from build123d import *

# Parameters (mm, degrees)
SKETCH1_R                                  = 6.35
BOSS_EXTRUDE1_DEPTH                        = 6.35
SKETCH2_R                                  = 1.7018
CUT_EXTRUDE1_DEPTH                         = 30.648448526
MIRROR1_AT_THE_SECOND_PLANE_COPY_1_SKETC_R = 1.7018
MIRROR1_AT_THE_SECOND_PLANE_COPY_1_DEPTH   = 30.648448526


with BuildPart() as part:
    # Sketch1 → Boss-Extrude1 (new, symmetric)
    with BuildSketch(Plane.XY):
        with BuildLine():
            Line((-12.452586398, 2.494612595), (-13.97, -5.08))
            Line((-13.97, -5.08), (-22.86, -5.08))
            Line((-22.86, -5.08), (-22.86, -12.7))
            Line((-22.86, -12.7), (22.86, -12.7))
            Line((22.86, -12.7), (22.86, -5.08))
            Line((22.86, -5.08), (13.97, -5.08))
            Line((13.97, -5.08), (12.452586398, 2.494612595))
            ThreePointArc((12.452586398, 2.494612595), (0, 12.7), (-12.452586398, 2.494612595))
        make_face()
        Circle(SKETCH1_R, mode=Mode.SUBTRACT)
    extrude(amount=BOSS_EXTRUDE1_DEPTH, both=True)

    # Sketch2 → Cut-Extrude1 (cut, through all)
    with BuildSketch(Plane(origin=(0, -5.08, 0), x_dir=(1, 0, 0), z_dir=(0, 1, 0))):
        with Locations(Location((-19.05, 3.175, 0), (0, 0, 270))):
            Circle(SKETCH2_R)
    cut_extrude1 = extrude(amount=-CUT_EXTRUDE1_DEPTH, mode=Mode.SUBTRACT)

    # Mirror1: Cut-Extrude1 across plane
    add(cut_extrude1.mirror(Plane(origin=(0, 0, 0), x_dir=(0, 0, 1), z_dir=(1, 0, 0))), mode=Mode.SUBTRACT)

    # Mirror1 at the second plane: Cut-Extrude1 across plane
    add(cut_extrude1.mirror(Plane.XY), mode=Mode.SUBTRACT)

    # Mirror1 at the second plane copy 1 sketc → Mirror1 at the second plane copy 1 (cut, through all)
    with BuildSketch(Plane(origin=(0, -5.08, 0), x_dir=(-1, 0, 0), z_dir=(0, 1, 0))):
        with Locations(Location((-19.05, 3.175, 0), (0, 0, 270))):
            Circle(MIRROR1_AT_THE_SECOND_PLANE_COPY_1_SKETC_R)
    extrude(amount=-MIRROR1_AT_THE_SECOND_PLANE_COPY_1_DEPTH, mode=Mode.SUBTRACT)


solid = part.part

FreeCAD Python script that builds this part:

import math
import FreeCAD as App
import Part
import Sketcher
from FreeCAD import Vector
Q = App.Units.Quantity

doc = App.newDocument("Part")
body = doc.addObject("PartDesign::Body", "Body")

# Sketch on XY plane
sketch1 = doc.addObject("Sketcher::SketchObject", "Sketch")
body.addObject(sketch1)
sketch1.AttachmentSupport = (doc.XY_Plane, [""])
sketch1.MapMode = "FlatFace"
sketch1.addGeometry([
    Part.LineSegment(Vector(-12.452586, 2.494613, 0), Vector(-13.97, -5.08, 0)),  # 0
    Part.LineSegment(Vector(-13.97, -5.08, 0), Vector(-22.86, -5.08, 0)),  # 1
    Part.LineSegment(Vector(-22.86, -5.08, 0), Vector(-22.86, -12.7, 0)),  # 2
    Part.LineSegment(Vector(-22.86, -12.7, 0), Vector(22.86, -12.7, 0)),  # 3
    Part.LineSegment(Vector(22.86, -12.7, 0), Vector(22.86, -5.08, 0)),  # 4
    Part.LineSegment(Vector(22.86, -5.08, 0), Vector(13.97, -5.08, 0)),  # 5
    Part.LineSegment(Vector(13.97, -5.08, 0), Vector(12.452586, 2.494613, 0)),  # 6
    Part.ArcOfCircle(Part.Circle(Vector(0, 0, 0), Vector(0, 0, 1), 12.7), math.radians(11.32805), math.radians(168.67195)),  # 7
    Part.Circle(Vector(0, 0, 0), Vector(0, 0, 1), 6.35),  # 8
], False)
sketch1.addConstraint([
    Sketcher.Constraint("Coincident", 0, 2, 1, 1),
    Sketcher.Constraint("Coincident", 1, 2, 2, 1),
    Sketcher.Constraint("Coincident", 2, 2, 3, 1),
    Sketcher.Constraint("Coincident", 3, 2, 4, 1),
    Sketcher.Constraint("Coincident", 4, 2, 5, 1),
    Sketcher.Constraint("Coincident", 5, 2, 6, 1),
    Sketcher.Constraint("Tangent", 6, 2, 7, 1),
    Sketcher.Constraint("Tangent", 7, 2, 0, 1),
    Sketcher.Constraint("Horizontal", 1),
    Sketcher.Constraint("Vertical", 2),
    Sketcher.Constraint("Horizontal", 3),
    Sketcher.Constraint("Vertical", 4),
    Sketcher.Constraint("Horizontal", 5),
    Sketcher.Constraint("Coincident", 7, 3, -1, 1),
    Sketcher.Constraint("Coincident", 8, 3, -1, 1),
    Sketcher.Constraint("Symmetric", 1, 2, 4, 2, -2),
    Sketcher.Constraint("Horizontal", 6, 2, 7, 2),
    Sketcher.Constraint("Diameter", 8, Q("0.5 in")),
    Sketcher.Constraint("Radius", 7, Q("0.5 in")),
    Sketcher.Constraint("DistanceX", 3, 1, 3, 2, Q("1.8 in")),
    Sketcher.Constraint("DistanceY", 2, 2, 2, 1, Q("0.3 in")),
    Sketcher.Constraint("DistanceX", 1, 2, 1, 1, Q("0.35 in")),
    Sketcher.Constraint("DistanceY", 0, 2, -1, 1, Q("0.2 in")),
])
pad1 = doc.addObject("PartDesign::Pad", "Pad")
body.addObject(pad1)
pad1.Profile = sketch1
pad1.Length = Q("0.5 in")
pad1.Midplane = True

# Sketch on XZ plane
sketch2 = doc.addObject("Sketcher::SketchObject", "Sketch001")
body.addObject(sketch2)
sketch2.AttachmentSupport = (doc.XZ_Plane, [""])
sketch2.MapMode = "FlatFace"
sketch2.AttachmentOffset = App.Placement(Vector(0, 0, 0.2 * 25.4), App.Rotation())
sketch2.addGeometry(Part.Circle(Vector(-19.05, -3.175, 0), Vector(0, 0, 1), 1.7018), False)
sketch2.addConstraint([
    Sketcher.Constraint("Diameter", 0, Q("0.134 in")),
    Sketcher.Constraint("DistanceX", 0, 3, -1, 1, Q("0.75 in")),
    Sketcher.Constraint("DistanceY", 0, 3, -1, 1, Q("0.125 in")),
])
pocket1 = doc.addObject("PartDesign::Pocket", "Pocket")
body.addObject(pocket1)
pocket1.Profile = sketch2
pocket1.Type = "ThroughAll"
pocket1.Reversed = True
doc.recompute()

mirrored = doc.addObject("PartDesign::Mirrored", "Mirrored")
body.addObject(mirrored)
mirrored.Originals = [pocket1]
mirrored.MirrorPlane = (doc.YZ_Plane, [""])
body.Tip = mirrored
doc.recompute()

mirrored2 = doc.addObject("PartDesign::Mirrored", "Mirrored001")
body.addObject(mirrored2)
mirrored2.Originals = [pocket1]
mirrored2.MirrorPlane = (doc.XY_Plane, [""])
body.Tip = mirrored2

# Sketch on XZ plane
sketch3 = doc.addObject("Sketcher::SketchObject", "Sketch002")
body.addObject(sketch3)
sketch3.AttachmentSupport = (doc.XZ_Plane, [""])
sketch3.MapMode = "FlatFace"
sketch3.AttachmentOffset = App.Placement(Vector(0, 0, 0.2 * 25.4), App.Rotation())
sketch3.addGeometry(Part.Circle(Vector(19.05, 3.175, 0), Vector(0, 0, 1), 1.7018), False)
sketch3.addConstraint([
    Sketcher.Constraint("Diameter", 0, Q("0.134 in")),
    Sketcher.Constraint("DistanceX", -1, 1, 0, 3, Q("0.75 in")),
    Sketcher.Constraint("DistanceY", -1, 1, 0, 3, Q("0.125 in")),
])
pocket2 = doc.addObject("PartDesign::Pocket", "Pocket001")
body.addObject(pocket2)
pocket2.Profile = sketch3
pocket2.Type = "ThroughAll"
pocket2.Reversed = True

doc.recompute()
